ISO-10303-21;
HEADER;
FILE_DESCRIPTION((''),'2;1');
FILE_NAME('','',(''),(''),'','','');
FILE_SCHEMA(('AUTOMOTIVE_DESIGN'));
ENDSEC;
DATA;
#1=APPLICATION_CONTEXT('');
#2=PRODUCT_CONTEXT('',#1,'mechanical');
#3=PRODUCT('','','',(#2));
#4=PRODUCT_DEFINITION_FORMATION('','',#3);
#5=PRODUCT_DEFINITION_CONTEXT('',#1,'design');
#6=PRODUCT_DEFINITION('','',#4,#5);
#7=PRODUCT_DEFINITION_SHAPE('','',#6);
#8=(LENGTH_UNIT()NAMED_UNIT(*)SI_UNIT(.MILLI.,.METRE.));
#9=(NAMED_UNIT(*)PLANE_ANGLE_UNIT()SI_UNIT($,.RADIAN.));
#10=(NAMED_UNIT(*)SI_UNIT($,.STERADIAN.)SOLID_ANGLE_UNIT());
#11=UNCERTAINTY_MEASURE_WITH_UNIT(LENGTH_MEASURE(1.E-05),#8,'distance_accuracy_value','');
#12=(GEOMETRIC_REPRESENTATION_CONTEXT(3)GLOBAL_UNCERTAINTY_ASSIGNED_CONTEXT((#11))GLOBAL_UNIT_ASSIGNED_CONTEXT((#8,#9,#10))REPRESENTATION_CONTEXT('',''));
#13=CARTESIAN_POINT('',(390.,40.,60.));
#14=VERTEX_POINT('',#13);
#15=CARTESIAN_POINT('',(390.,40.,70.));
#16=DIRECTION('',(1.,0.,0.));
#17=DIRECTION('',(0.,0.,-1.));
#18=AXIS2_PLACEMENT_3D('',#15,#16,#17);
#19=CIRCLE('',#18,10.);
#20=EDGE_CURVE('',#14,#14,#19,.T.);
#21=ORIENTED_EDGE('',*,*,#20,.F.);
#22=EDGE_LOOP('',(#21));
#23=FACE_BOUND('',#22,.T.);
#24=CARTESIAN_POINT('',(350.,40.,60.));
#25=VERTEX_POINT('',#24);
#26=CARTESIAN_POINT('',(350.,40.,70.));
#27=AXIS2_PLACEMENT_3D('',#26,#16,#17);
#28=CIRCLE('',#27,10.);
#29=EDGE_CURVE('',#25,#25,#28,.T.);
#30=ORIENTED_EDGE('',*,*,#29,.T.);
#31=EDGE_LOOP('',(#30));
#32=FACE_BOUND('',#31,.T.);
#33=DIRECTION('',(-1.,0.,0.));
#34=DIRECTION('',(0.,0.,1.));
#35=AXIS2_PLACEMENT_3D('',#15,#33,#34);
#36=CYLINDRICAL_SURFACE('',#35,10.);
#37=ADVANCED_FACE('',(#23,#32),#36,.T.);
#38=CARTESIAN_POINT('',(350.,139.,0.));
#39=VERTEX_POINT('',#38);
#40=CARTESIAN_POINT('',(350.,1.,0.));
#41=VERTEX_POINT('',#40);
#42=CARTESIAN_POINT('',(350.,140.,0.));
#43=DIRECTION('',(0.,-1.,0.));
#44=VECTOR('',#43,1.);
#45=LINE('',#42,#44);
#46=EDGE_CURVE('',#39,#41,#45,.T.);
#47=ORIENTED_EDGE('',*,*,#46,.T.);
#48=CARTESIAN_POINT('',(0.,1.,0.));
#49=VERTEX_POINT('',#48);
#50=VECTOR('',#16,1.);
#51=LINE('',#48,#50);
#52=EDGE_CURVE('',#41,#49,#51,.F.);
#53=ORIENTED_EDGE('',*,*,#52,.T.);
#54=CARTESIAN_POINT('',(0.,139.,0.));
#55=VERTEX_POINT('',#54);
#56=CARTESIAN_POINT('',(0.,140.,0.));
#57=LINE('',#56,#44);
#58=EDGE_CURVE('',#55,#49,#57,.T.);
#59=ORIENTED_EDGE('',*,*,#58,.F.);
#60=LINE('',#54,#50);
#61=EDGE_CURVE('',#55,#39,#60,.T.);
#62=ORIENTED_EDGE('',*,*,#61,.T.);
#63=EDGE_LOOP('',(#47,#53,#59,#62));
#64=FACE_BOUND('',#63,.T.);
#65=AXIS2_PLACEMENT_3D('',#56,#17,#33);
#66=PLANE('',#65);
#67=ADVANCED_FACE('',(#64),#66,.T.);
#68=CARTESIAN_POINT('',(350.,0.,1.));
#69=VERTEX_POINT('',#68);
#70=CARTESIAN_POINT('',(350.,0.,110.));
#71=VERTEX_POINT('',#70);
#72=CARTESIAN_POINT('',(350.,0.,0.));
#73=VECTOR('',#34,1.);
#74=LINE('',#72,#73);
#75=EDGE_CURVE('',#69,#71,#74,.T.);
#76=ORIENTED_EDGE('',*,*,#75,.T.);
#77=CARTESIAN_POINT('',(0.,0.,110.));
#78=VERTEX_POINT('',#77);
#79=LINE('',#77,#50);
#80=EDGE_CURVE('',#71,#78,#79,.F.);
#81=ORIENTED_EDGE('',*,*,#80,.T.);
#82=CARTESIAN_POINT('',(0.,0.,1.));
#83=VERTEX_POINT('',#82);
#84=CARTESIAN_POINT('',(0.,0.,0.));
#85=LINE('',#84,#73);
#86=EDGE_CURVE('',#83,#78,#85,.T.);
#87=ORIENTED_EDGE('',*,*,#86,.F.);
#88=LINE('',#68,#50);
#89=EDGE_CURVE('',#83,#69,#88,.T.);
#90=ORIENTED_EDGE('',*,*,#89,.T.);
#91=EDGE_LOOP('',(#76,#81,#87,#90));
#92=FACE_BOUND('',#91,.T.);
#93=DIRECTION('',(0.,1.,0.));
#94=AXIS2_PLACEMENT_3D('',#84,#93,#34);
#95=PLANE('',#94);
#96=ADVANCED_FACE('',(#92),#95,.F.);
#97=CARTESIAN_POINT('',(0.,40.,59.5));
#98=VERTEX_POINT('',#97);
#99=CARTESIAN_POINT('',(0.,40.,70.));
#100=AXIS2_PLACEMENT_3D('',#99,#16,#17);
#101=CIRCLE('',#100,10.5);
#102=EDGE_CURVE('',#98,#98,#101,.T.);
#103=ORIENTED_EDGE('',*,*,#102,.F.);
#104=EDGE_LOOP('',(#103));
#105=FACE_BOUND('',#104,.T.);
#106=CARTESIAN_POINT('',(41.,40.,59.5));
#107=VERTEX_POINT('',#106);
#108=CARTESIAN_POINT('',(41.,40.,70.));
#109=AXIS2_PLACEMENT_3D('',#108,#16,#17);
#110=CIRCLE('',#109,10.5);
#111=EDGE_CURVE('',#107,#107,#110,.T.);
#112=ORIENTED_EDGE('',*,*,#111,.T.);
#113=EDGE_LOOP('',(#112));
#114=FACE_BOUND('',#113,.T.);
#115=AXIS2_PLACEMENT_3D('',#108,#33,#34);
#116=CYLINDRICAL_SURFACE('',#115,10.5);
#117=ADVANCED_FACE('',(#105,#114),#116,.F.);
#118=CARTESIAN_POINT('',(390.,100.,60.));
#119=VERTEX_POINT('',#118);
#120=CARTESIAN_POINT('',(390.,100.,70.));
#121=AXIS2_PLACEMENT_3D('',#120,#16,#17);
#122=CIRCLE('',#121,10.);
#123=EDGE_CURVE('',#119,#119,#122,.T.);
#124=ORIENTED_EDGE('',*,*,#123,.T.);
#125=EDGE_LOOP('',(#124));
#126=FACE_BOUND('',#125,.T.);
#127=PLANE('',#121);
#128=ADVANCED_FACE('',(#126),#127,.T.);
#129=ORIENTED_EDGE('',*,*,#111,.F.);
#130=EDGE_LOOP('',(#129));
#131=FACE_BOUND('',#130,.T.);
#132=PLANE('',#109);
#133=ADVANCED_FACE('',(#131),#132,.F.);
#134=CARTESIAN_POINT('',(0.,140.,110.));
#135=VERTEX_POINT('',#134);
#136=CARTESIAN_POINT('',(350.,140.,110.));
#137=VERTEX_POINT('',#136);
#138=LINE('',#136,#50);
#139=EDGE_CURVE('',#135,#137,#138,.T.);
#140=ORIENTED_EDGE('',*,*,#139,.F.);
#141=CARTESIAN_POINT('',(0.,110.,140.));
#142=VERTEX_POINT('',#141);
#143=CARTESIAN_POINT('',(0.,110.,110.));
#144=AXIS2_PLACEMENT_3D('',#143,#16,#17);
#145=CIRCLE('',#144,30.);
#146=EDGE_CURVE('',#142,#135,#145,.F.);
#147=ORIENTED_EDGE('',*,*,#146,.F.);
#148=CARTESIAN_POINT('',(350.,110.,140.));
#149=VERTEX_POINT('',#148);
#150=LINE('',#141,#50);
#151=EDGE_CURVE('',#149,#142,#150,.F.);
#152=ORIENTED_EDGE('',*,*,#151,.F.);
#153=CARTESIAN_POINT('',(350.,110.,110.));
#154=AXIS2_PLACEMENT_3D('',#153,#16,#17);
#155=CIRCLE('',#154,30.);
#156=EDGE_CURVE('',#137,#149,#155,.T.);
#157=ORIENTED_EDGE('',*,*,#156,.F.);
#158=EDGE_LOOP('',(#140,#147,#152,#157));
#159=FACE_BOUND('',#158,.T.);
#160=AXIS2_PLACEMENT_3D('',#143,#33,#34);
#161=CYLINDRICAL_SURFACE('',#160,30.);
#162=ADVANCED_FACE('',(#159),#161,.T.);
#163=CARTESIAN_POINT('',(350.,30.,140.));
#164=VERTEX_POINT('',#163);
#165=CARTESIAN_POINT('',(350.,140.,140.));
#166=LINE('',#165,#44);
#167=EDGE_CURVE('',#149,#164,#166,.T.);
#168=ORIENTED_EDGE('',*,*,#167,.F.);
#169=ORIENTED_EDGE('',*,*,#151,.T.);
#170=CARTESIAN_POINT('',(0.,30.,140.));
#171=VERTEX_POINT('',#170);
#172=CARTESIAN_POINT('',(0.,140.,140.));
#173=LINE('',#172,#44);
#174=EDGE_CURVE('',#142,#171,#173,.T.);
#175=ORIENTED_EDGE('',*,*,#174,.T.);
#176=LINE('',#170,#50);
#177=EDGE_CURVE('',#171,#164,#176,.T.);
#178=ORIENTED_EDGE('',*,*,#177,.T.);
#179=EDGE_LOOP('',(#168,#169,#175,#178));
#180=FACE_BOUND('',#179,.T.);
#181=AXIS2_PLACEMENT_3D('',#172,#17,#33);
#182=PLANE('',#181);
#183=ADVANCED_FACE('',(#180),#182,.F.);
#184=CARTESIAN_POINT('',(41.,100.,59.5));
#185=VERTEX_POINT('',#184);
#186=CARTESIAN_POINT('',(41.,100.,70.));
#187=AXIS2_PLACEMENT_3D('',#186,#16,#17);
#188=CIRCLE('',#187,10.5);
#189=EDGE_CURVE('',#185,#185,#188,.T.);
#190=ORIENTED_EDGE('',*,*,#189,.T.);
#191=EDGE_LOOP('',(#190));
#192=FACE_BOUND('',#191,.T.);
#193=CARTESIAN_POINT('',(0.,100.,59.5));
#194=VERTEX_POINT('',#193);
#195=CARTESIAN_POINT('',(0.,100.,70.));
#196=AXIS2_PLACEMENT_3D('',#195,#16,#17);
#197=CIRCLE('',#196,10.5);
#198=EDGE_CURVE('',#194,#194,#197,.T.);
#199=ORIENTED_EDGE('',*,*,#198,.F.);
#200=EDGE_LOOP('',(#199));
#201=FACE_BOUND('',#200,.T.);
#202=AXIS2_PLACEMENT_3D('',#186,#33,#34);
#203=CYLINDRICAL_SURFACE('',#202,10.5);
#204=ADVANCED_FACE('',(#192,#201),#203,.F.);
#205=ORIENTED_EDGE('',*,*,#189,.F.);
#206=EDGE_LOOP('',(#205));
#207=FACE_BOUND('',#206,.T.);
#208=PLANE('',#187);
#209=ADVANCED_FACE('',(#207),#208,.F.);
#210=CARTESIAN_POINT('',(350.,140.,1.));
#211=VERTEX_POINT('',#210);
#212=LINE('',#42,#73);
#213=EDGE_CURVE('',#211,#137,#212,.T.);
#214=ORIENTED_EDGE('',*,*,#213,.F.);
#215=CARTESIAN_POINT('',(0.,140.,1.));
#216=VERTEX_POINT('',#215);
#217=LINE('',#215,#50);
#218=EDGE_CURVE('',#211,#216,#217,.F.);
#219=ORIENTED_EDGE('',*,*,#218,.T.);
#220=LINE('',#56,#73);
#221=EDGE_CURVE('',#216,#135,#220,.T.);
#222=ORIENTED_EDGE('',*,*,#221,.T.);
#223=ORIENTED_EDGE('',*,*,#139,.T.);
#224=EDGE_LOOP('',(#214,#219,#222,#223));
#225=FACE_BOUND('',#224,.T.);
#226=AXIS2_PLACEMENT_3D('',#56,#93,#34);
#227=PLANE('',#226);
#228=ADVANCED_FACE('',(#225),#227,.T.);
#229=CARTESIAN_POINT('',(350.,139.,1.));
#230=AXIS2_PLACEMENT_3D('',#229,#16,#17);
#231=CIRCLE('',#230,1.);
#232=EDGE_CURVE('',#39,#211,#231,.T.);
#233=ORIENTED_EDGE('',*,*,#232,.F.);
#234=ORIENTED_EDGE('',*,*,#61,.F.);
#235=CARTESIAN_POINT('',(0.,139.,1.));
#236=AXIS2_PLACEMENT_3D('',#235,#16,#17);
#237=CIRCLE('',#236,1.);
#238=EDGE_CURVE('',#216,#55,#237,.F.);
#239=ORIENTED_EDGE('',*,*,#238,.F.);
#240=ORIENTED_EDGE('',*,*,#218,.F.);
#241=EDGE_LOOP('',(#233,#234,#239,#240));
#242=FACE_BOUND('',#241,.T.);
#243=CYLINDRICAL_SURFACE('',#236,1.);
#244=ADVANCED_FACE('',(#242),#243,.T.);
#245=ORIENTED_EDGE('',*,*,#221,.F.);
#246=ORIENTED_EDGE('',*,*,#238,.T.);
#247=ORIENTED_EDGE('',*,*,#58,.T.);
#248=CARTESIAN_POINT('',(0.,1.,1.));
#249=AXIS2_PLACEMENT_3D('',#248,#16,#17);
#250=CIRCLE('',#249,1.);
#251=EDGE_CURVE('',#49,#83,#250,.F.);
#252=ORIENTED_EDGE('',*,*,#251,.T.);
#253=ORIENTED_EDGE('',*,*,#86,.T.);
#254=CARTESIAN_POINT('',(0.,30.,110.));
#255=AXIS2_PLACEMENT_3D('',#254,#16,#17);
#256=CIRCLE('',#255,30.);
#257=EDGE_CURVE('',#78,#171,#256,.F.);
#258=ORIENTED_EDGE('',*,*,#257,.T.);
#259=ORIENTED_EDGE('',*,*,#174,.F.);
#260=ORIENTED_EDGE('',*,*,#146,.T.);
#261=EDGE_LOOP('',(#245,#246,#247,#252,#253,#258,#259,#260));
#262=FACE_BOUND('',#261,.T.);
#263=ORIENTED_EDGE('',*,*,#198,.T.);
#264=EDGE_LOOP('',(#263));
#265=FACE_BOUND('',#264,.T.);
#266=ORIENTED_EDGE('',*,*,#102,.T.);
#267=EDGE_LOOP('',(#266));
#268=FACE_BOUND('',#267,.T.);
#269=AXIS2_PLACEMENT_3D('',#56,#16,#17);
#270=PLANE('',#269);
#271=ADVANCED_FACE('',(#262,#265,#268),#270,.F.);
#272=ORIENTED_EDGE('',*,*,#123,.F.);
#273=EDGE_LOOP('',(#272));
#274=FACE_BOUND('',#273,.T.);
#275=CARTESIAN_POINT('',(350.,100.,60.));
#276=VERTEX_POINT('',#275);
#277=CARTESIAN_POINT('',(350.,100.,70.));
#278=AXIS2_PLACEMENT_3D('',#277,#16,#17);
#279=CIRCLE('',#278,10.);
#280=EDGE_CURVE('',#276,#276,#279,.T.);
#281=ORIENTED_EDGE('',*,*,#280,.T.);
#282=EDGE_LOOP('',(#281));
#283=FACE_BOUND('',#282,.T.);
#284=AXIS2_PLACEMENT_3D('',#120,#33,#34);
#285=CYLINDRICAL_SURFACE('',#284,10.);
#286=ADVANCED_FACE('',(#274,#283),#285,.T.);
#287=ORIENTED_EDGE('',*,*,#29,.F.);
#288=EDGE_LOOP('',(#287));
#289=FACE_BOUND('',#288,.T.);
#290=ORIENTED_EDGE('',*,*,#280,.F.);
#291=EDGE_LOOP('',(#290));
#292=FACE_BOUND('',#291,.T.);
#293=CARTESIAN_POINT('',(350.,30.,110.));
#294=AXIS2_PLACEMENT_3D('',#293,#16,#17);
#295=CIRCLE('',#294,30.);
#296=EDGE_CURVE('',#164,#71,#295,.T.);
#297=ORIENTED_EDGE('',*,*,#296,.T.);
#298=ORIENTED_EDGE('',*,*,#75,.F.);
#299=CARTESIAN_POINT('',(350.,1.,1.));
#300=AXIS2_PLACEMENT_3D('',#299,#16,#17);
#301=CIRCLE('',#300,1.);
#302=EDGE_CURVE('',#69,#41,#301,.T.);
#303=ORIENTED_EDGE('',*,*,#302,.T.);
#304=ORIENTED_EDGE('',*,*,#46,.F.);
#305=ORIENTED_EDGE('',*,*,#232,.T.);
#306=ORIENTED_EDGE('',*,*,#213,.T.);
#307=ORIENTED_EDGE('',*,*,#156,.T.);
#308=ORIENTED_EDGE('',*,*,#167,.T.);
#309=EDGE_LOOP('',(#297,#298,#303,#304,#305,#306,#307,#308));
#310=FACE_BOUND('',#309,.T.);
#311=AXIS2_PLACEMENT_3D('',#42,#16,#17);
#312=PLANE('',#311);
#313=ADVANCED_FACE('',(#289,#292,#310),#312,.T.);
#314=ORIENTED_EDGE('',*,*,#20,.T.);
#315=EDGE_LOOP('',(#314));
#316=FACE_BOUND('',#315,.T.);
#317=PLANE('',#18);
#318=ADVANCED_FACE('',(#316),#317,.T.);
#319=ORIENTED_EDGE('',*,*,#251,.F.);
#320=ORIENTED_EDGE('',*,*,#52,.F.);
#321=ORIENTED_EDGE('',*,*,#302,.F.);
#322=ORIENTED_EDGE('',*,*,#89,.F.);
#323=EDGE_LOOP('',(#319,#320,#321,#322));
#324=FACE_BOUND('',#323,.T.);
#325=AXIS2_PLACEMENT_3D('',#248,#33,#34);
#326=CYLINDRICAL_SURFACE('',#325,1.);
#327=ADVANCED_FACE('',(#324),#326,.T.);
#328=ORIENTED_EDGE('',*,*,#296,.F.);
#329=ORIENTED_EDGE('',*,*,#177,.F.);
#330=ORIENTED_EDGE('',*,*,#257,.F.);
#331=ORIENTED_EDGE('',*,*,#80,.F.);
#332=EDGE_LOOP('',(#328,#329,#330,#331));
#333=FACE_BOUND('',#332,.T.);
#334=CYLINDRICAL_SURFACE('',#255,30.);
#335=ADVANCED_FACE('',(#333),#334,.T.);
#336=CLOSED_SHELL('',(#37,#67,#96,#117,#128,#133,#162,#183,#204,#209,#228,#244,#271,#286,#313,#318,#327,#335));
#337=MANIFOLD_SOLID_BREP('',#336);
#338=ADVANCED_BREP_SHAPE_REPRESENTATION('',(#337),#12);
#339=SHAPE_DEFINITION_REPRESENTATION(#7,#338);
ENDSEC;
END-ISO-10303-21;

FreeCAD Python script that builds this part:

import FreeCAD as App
import Part
import Sketcher

V = App.Vector
Q = App.Units.Quantity


def edges_at(feature, points):
    """Names of the edges that pass closest to the given points."""
    edges = feature.Shape.Edges
    near = lambda p: min(range(len(edges)), key=lambda i: edges[i].distToShape(Part.Vertex(*p))[0])
    return sorted({f"Edge{near(p) + 1}" for p in points})


def add_polygon(sketch, points):
    """Adds a closed chain of lines whose ends are joined by coincident constraints."""
    first, n = sketch.GeometryCount, len(points)
    for a, b in zip(points, points[1:] + points[:1]):
        sketch.addGeometry(Part.LineSegment(App.Vector(*a, 0), App.Vector(*b, 0)), False)
    for i in range(n):
        sketch.addConstraint(Sketcher.Constraint("Coincident", first + i, 2, first + (i + 1) % n, 1))

doc = App.newDocument("Part")
body = doc.addObject("PartDesign::Body", "Body")

# Sketch on XZ plane
sketch1 = body.newObject("Sketcher::SketchObject", "Sketch")
sketch1.AttachmentSupport = (doc.getObject("XZ_Plane"), [""])
sketch1.MapMode = "FlatFace"
add_polygon(sketch1, [(0, 0), (0, 140), (350, 140), (350, 0)])  # lines 0-3
sketch1.addConstraint([
    Sketcher.Constraint("Vertical", 0),
    Sketcher.Constraint("Horizontal", 1),
    Sketcher.Constraint("Vertical", 2),
    Sketcher.Constraint("Horizontal", 3),
    Sketcher.Constraint("Coincident", 3, 2, -1, 1),
    Sketcher.Constraint("DistanceX", 1, 1, 1, 2, Q("350 mm")),
    Sketcher.Constraint("DistanceY", 0, 1, 0, 2, Q("140 mm")),
])
pad1 = body.newObject("PartDesign::Pad", "Pad")
pad1.Profile = sketch1
pad1.Length = 140
pad1.Reversed = True

# Sketch on YZ plane
sketch2 = body.newObject("Sketcher::SketchObject", "Sketch001")
sketch2.AttachmentSupport = (doc.getObject("YZ_Plane"), [""])
sketch2.MapMode = "FlatFace"
sketch2.addGeometry([
    Part.Circle(V(100, 70, 0), V(0, 0, 1), 10),
    Part.Circle(V(40, 70, 0), V(0, 0, 1), 10),
], False)
sketch2.addConstraint([
    Sketcher.Constraint("Equal", 0, 1),
    Sketcher.Constraint("Horizontal", 0, 3, 1, 3),
    Sketcher.Constraint("Diameter", 0, Q("21 mm")),
    Sketcher.Constraint("DistanceX", -1, 1, 0, 3, Q("100 mm")),
    Sketcher.Constraint("DistanceY", -1, 1, 0, 3, Q("70 mm")),
    Sketcher.Constraint("DistanceX", -1, 1, 1, 3, Q("40 mm")),
])
pocket1 = body.newObject("PartDesign::Pocket", "Pocket")
pocket1.Profile = sketch2
pocket1.Length = 41
pocket1.Reversed = True
doc.recompute()

fillet = body.newObject("PartDesign::Fillet", "Fillet")
fillet.Base = (pocket1, edges_at(pocket1, [(175, 140, 140), (175, 0, 140)]))
fillet.Radius = 30
doc.recompute()

fillet2 = body.newObject("PartDesign::Fillet", "Fillet001")
fillet2.Base = (fillet, edges_at(fillet, [(175, 140, 0), (175, 0, 0)]))
fillet2.Radius = 1

# Sketch on YZ plane
sketch3 = body.newObject("Sketcher::SketchObject", "Sketch002")
sketch3.AttachmentSupport = (doc.getObject("YZ_Plane"), [""])
sketch3.MapMode = "FlatFace"
sketch3.AttachmentOffset = App.Placement(V(0, 0, 350), App.Rotation())
sketch3.addGeometry([
    Part.Circle(V(100, 70, 0), V(0, 0, 1), 10),
    Part.Circle(V(40, 70, 0), V(0, 0, 1), 10),
], False)
sketch3.addConstraint([
    Sketcher.Constraint("Equal", 0, 1),
    Sketcher.Constraint("Horizontal", 0, 3, 1, 3),
    Sketcher.Constraint("Diameter", 0, Q("20 mm")),
    Sketcher.Constraint("DistanceX", -1, 1, 0, 3, Q("100 mm")),
    Sketcher.Constraint("DistanceY", -1, 1, 0, 3, Q("70 mm")),
    Sketcher.Constraint("DistanceX", -1, 1, 1, 3, Q("40 mm")),
])
pad2 = body.newObject("PartDesign::Pad", "Pad001")
pad2.Profile = sketch3
pad2.Length = 40

doc.recompute()
